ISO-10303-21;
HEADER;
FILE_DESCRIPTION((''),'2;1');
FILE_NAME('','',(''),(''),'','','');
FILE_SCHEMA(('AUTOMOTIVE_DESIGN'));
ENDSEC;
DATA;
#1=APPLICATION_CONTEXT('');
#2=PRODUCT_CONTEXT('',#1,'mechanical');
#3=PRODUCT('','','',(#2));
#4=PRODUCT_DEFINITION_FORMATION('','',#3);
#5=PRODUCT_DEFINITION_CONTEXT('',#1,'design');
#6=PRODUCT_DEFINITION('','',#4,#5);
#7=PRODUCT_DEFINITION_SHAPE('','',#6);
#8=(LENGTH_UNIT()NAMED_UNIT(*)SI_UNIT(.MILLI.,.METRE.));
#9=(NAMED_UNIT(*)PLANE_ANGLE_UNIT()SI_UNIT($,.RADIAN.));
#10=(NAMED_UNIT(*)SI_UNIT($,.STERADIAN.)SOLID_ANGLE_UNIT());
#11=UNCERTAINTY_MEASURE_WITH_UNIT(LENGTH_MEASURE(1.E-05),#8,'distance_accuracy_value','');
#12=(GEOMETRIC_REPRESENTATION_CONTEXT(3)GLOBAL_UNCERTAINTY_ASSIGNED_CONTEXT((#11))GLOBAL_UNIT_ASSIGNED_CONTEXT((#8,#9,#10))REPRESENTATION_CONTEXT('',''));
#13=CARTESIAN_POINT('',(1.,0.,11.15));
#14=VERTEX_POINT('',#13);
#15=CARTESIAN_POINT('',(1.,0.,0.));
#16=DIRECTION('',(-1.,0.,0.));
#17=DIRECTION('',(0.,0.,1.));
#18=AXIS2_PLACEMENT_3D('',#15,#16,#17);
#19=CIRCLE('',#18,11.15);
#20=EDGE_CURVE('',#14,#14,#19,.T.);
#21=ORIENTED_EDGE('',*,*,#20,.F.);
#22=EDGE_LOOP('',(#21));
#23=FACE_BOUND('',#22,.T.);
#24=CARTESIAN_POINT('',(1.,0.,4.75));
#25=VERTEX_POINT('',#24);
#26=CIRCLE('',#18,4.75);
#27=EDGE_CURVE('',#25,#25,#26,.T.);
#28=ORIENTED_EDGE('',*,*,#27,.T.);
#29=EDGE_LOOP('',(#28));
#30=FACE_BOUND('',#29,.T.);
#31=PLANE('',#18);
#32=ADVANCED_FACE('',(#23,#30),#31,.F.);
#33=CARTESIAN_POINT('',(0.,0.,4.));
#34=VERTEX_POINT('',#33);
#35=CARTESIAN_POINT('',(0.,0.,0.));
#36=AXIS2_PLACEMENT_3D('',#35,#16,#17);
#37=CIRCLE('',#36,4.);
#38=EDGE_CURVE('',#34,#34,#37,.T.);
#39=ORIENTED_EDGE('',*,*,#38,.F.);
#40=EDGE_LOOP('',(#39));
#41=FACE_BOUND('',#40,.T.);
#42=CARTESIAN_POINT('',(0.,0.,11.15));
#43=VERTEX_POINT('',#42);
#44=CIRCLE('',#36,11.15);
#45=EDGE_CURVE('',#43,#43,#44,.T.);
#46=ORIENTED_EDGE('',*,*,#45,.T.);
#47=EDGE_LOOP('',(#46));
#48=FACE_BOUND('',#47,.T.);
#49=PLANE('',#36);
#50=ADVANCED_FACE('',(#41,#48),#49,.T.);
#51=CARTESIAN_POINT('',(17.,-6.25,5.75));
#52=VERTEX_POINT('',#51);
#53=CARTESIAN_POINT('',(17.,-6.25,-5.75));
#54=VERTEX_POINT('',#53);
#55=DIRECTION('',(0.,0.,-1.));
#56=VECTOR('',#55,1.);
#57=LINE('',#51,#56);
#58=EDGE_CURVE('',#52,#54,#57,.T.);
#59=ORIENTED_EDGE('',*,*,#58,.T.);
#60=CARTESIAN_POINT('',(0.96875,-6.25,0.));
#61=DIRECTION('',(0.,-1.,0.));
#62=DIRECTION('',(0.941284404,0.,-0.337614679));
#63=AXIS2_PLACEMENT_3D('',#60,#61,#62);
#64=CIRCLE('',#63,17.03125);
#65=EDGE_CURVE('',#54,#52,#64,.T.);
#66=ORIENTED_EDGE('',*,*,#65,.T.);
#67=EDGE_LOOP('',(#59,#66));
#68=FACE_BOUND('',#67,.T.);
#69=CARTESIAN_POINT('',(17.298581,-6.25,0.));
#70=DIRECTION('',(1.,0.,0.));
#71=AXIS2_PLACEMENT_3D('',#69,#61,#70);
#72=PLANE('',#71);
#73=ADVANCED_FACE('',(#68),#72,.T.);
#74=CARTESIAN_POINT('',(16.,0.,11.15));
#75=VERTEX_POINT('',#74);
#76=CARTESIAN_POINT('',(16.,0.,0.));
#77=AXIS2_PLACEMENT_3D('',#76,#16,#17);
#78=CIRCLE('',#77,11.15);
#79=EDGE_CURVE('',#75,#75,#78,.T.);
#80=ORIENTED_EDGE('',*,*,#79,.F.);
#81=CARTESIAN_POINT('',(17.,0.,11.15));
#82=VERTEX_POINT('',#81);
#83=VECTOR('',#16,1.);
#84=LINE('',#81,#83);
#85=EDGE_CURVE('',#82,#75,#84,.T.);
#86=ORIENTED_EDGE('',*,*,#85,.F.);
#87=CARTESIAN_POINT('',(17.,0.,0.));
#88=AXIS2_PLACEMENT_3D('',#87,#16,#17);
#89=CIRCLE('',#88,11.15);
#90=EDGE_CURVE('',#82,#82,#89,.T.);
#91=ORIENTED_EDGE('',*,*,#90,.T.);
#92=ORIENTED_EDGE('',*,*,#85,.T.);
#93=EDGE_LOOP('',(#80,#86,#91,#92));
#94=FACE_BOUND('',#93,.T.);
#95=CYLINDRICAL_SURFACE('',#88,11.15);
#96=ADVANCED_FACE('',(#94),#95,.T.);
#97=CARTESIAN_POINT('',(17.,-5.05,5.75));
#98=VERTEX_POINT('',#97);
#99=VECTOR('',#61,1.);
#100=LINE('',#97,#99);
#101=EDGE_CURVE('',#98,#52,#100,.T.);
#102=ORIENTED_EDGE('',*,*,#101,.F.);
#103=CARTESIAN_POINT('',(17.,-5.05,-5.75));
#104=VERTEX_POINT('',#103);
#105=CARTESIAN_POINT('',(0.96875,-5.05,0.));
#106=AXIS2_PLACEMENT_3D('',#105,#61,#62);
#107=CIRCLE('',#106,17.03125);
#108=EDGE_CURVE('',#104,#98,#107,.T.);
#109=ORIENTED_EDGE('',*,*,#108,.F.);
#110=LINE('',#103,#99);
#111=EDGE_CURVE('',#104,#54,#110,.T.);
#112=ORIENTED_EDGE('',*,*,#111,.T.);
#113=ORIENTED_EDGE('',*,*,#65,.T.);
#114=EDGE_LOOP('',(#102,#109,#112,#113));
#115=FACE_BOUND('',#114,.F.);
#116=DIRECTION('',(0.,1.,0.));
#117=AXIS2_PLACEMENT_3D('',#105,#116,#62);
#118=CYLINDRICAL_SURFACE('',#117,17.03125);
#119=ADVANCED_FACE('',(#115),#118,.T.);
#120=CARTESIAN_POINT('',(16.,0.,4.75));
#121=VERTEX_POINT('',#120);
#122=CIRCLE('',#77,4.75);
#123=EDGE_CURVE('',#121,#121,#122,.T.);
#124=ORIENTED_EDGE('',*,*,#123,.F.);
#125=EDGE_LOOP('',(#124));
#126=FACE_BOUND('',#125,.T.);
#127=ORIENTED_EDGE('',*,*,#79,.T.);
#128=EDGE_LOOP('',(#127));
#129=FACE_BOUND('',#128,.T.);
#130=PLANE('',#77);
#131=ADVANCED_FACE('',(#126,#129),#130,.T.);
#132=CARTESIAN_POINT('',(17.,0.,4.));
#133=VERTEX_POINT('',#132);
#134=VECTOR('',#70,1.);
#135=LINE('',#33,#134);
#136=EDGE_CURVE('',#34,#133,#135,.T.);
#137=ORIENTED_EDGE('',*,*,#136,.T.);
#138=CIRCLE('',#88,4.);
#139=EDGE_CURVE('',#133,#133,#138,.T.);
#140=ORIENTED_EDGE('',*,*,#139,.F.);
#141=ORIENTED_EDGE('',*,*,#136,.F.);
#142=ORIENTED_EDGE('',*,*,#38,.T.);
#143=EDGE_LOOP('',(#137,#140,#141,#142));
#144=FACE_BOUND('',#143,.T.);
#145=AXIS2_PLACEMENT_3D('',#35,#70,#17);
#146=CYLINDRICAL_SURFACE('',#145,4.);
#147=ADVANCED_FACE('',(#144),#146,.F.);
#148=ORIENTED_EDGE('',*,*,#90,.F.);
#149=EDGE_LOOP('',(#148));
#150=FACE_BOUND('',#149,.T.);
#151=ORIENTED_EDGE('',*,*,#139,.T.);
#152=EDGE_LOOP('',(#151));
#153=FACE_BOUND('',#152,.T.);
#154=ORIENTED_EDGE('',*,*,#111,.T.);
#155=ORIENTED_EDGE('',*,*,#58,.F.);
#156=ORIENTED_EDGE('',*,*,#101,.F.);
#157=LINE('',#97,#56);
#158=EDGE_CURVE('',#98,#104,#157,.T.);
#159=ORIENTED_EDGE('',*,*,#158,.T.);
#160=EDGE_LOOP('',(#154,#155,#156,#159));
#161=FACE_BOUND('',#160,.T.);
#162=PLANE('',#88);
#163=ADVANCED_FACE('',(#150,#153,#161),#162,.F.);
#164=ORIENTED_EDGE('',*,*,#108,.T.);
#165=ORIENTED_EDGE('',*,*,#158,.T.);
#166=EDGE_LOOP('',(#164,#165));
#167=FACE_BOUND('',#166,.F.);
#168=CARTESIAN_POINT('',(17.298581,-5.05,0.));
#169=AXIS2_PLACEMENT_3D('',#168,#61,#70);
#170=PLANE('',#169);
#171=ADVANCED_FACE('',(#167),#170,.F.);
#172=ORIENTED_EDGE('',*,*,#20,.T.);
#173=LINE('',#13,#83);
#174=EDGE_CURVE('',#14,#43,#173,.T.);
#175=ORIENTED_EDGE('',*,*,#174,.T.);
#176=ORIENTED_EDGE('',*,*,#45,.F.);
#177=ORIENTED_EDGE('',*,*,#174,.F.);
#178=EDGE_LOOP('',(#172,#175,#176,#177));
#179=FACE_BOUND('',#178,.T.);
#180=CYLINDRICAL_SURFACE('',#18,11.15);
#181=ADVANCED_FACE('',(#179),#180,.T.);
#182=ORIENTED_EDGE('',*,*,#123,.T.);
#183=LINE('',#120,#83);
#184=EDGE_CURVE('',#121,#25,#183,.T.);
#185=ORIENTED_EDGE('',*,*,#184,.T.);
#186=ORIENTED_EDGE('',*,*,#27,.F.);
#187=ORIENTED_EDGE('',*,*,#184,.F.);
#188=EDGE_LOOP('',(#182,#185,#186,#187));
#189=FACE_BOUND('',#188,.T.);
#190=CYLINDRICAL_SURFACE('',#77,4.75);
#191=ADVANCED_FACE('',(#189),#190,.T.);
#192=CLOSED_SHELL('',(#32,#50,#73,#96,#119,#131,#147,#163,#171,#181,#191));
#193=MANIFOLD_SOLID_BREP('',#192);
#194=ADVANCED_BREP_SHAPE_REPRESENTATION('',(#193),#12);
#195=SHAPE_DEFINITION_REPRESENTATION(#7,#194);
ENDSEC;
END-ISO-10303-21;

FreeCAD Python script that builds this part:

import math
import FreeCAD as App
import Part
import Sketcher

V = App.Vector

doc = App.newDocument("Part")
params = doc.addObject("Spreadsheet::Sheet", "Params")
for row, (alias, value) in enumerate([
    ("sketch1_width", "17 mm"),
    ("sketch1_width2", "1 mm"),
    ("sketch1_height", "6.4 mm"),
    ("sketch1_height2", "7.15 mm"),
    ("revolution_angle", "360 deg"),
    ("sketch2_height", "11.5 mm"),
    ("pad1_length", "1.2 mm"),
], start=1):
    params.set(f"A{row}", alias)
    params.set(f"B{row}", "=" + value)
    params.setAlias(f"B{row}", alias)

body = doc.addObject("PartDesign::Body", "Body")

sketch1 = body.newObject("Sketcher::SketchObject", "Sketch")
sketch1.AttachmentSupport = (doc.getObject("XZ_Plane"), [""])
sketch1.MapMode = "FlatFace"
sketch1.addGeometry(Part.LineSegment(V(0, 11.15, 0), V(0, 4, 0)), False)
sketch1.addGeometry(Part.LineSegment(V(0, 4, 0), V(17, 4, 0)), False)
sketch1.addGeometry(Part.LineSegment(V(17, 4, 0), V(17, 11.15, 0)), False)
sketch1.addGeometry(Part.LineSegment(V(17, 11.15, 0), V(16, 11.15, 0)), False)
sketch1.addGeometry(Part.LineSegment(V(16, 11.15, 0), V(16, 4.75, 0)), False)
sketch1.addGeometry(Part.LineSegment(V(16, 4.75, 0), V(1, 4.75, 0)), False)
sketch1.addGeometry(Part.LineSegment(V(1, 4.75, 0), V(1, 11.15, 0)), False)
sketch1.addGeometry(Part.LineSegment(V(1, 11.15, 0), V(0, 11.15, 0)), False)
sketch1.addConstraint(Sketcher.Constraint("Coincident", 0, 2, 1, 1))
sketch1.addConstraint(Sketcher.Constraint("Coincident", 1, 2, 2, 1))
sketch1.addConstraint(Sketcher.Constraint("Coincident", 2, 2, 3, 1))
sketch1.addConstraint(Sketcher.Constraint("Coincident", 3, 2, 4, 1))
sketch1.addConstraint(Sketcher.Constraint("Coincident", 4, 2, 5, 1))
sketch1.addConstraint(Sketcher.Constraint("Coincident", 5, 2, 6, 1))
sketch1.addConstraint(Sketcher.Constraint("Coincident", 6, 2, 7, 1))
sketch1.addConstraint(Sketcher.Constraint("Coincident", 7, 2, 0, 1))
sketch1.addConstraint(Sketcher.Constraint("Vertical", 0))
sketch1.addConstraint(Sketcher.Constraint("Horizontal", 1))
sketch1.addConstraint(Sketcher.Constraint("Vertical", 2))
sketch1.addConstraint(Sketcher.Constraint("Horizontal", 3))
sketch1.addConstraint(Sketcher.Constraint("Vertical", 4))
sketch1.addConstraint(Sketcher.Constraint("Horizontal", 5))
sketch1.addConstraint(Sketcher.Constraint("Vertical", 6))
sketch1.addConstraint(Sketcher.Constraint("Horizontal", 7))
sketch1.addConstraint(Sketcher.Constraint("PointOnObject", 0, 2, -2))
sketch1.addConstraint(Sketcher.Constraint("Horizontal", 3, 2, 6, 2))
sketch1.addConstraint(Sketcher.Constraint("Equal", 3, 7))
sketch1.addConstraint(Sketcher.Constraint("DistanceX", 1, 1, 1, 2, 17.0))
sketch1.addConstraint(Sketcher.Constraint("DistanceX", 3, 2, 3, 1, 1.0))
sketch1.addConstraint(Sketcher.Constraint("DistanceY", 4, 2, 4, 1, 6.4))
sketch1.addConstraint(Sketcher.Constraint("DistanceY", -1, 1, 0, 2, 4.0))
sketch1.addConstraint(Sketcher.Constraint("DistanceY", 0, 2, 0, 1, 7.15))
sketch1.setExpression("Constraints[19]", "Params.sketch1_width")
sketch1.setExpression("Constraints[20]", "Params.sketch1_width2")
sketch1.setExpression("Constraints[21]", "Params.sketch1_height")
sketch1.setExpression("Constraints[23]", "Params.sketch1_height2")
revolution = body.newObject("PartDesign::Revolution", "Revolution")
revolution.Profile = sketch1
revolution.ReferenceAxis = (sketch1, ["H_Axis"])
revolution.setExpression("Angle", "Params.revolution_angle")

sketch2 = body.newObject("Sketcher::SketchObject", "Sketch001")
sketch2.AttachmentSupport = (doc.getObject("XZ_Plane"), [""])
sketch2.MapMode = "FlatFace"
sketch2.AttachmentOffset = App.Placement(V(0, 0, 5.05), App.Rotation())
sketch2.addGeometry(Part.LineSegment(V(17, 5.75, 0), V(17, -5.75, 0)), False)
sketch2.addGeometry(Part.ArcOfCircle(Part.Circle(V(0.96875, 0, 0), V(0, 0, 1), 17.03125), math.radians(-19.731614), math.radians(19.731614)), False)
sketch2.addConstraint(Sketcher.Constraint("Coincident", 0, 1, 1, 2))
sketch2.addConstraint(Sketcher.Constraint("Coincident", 1, 1, 0, 2))
sketch2.addConstraint(Sketcher.Constraint("Vertical", 0))
sketch2.addConstraint(Sketcher.Constraint("PointOnObject", 1, 3, -1))
sketch2.addConstraint(Sketcher.Constraint("DistanceY", 0, 2, 0, 1, 11.5))
sketch2.addConstraint(Sketcher.Constraint("DistanceX", -1, 1, 0, 1, 17.0))
sketch2.addConstraint(Sketcher.Constraint("Radius", 1, 17.03125))
sketch2.setExpression("Constraints[4]", "Params.sketch2_height")
pad1 = body.newObject("PartDesign::Pad", "Pad")
pad1.Profile = sketch2
pad1.setExpression("Length", "Params.pad1_length")

doc.recompute()
